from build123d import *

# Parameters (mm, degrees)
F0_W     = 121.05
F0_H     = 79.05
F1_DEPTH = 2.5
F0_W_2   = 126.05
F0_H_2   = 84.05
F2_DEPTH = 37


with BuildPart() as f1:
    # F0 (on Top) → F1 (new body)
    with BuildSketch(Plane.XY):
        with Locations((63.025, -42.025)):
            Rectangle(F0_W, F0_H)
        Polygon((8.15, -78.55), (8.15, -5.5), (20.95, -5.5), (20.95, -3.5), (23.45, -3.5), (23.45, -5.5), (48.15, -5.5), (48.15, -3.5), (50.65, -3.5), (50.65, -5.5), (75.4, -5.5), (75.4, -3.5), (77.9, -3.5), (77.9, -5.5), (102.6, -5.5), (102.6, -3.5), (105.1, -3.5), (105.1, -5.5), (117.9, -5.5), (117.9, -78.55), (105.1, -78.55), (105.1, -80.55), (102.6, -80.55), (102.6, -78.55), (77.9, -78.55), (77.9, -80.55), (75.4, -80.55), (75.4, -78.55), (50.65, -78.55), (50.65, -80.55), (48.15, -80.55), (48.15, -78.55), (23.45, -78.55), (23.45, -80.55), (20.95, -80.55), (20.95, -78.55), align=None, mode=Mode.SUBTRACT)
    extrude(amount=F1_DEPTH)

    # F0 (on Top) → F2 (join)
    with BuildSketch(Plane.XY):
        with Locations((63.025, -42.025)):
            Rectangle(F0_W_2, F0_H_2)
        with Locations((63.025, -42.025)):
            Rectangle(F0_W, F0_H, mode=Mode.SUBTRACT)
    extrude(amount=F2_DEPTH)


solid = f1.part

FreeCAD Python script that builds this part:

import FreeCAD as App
import Part
import Sketcher
Q = App.Units.Quantity

doc = App.newDocument("Part")
body = doc.addObject("PartDesign::Body", "Body")

# Sketch on XY plane
sketch1 = body.newObject("Sketcher::SketchObject", "Sketch")
sketch1.AttachmentSupport = (doc.getObject("XY_Plane"), [""])
sketch1.MapMode = "FlatFace"
sketch1.addGeometry([
    Part.LineSegment(App.Vector(2.5, -2.5, 0), App.Vector(2.5, -81.5, 0)),  # 0
    Part.LineSegment(App.Vector(2.5, -81.5, 0), App.Vector(123.5, -81.5, 0)),  # 1
    Part.LineSegment(App.Vector(123.5, -81.5, 0), App.Vector(123.5, -2.5, 0)),  # 2
    Part.LineSegment(App.Vector(123.5, -2.5, 0), App.Vector(2.5, -2.5, 0)),  # 3
    Part.LineSegment(App.Vector(20.9, -78.5, 0), App.Vector(8.2, -78.5, 0)),  # 4
    Part.LineSegment(App.Vector(8.2, -78.5, 0), App.Vector(8.2, -5.5, 0)),  # 5
    Part.LineSegment(App.Vector(8.2, -5.5, 0), App.Vector(20.9, -5.5, 0)),  # 6
    Part.LineSegment(App.Vector(20.9, -5.5, 0), App.Vector(20.9, -3.5, 0)),  # 7
    Part.LineSegment(App.Vector(20.9, -3.5, 0), App.Vector(23.4, -3.5, 0)),  # 8
    Part.LineSegment(App.Vector(23.4, -3.5, 0), App.Vector(23.4, -5.5, 0)),  # 9
    Part.LineSegment(App.Vector(23.4, -5.5, 0), App.Vector(48.1, -5.5, 0)),  # 10
    Part.LineSegment(App.Vector(48.1, -5.5, 0), App.Vector(48.1, -3.5, 0)),  # 11
    Part.LineSegment(App.Vector(48.1, -3.5, 0), App.Vector(50.6, -3.5, 0)),  # 12
    Part.LineSegment(App.Vector(50.6, -3.5, 0), App.Vector(50.6, -5.5, 0)),  # 13
    Part.LineSegment(App.Vector(50.6, -5.5, 0), App.Vector(75.4, -5.5, 0)),  # 14
    Part.LineSegment(App.Vector(75.4, -5.5, 0), App.Vector(75.4, -3.5, 0)),  # 15
    Part.LineSegment(App.Vector(75.4, -3.5, 0), App.Vector(77.9, -3.5, 0)),  # 16
    Part.LineSegment(App.Vector(77.9, -3.5, 0), App.Vector(77.9, -5.5, 0)),  # 17
    Part.LineSegment(App.Vector(77.9, -5.5, 0), App.Vector(102.6, -5.5, 0)),  # 18
    Part.LineSegment(App.Vector(102.6, -5.5, 0), App.Vector(102.6, -3.5, 0)),  # 19
    Part.LineSegment(App.Vector(102.6, -3.5, 0), App.Vector(105.1, -3.5, 0)),  # 20
    Part.LineSegment(App.Vector(105.1, -3.5, 0), App.Vector(105.1, -5.5, 0)),  # 21
    Part.LineSegment(App.Vector(105.1, -5.5, 0), App.Vector(117.9, -5.5, 0)),  # 22
    Part.LineSegment(App.Vector(117.9, -5.5, 0), App.Vector(117.9, -78.5, 0)),  # 23
    Part.LineSegment(App.Vector(117.9, -78.5, 0), App.Vector(105.1, -78.5, 0)),  # 24
    Part.LineSegment(App.Vector(105.1, -78.5, 0), App.Vector(105.1, -80.5, 0)),  # 25
    Part.LineSegment(App.Vector(105.1, -80.5, 0), App.Vector(102.6, -80.5, 0)),  # 26
    Part.LineSegment(App.Vector(102.6, -80.5, 0), App.Vector(102.6, -78.5, 0)),  # 27
    Part.LineSegment(App.Vector(102.6, -78.5, 0), App.Vector(77.9, -78.5, 0)),  # 28
    Part.LineSegment(App.Vector(77.9, -78.5, 0), App.Vector(77.9, -80.5, 0)),  # 29
    Part.LineSegment(App.Vector(77.9, -80.5, 0), App.Vector(75.4, -80.5, 0)),  # 30
    Part.LineSegment(App.Vector(75.4, -80.5, 0), App.Vector(75.4, -78.5, 0)),  # 31
    Part.LineSegment(App.Vector(75.4, -78.5, 0), App.Vector(50.6, -78.5, 0)),  # 32
    Part.LineSegment(App.Vector(50.6, -78.5, 0), App.Vector(50.6, -80.5, 0)),  # 33
    Part.LineSegment(App.Vector(50.6, -80.5, 0), App.Vector(48.1, -80.5, 0)),  # 34
    Part.LineSegment(App.Vector(48.1, -80.5, 0), App.Vector(48.1, -78.5, 0)),  # 35
    Part.LineSegment(App.Vector(48.1, -78.5, 0), App.Vector(23.4, -78.5, 0)),  # 36
    Part.LineSegment(App.Vector(23.4, -78.5, 0), App.Vector(23.4, -80.5, 0)),  # 37
    Part.LineSegment(App.Vector(23.4, -80.5, 0), App.Vector(20.9, -80.5, 0)),  # 38
    Part.LineSegment(App.Vector(20.9, -80.5, 0), App.Vector(20.9, -78.5, 0)),  # 39
], False)
sketch1.addConstraint([
    Sketcher.Constraint("Coincident", 0, 2, 1, 1),
    Sketcher.Constraint("Coincident", 1, 2, 2, 1),
    Sketcher.Constraint("Coincident", 2, 2, 3, 1),
    Sketcher.Constraint("Coincident", 3, 2, 0, 1),
    Sketcher.Constraint("Coincident", 4, 2, 5, 1),
    Sketcher.Constraint("Coincident", 5, 2, 6, 1),
    Sketcher.Constraint("Coincident", 6, 2, 7, 1),
    Sketcher.Constraint("Coincident", 7, 2, 8, 1),
    Sketcher.Constraint("Coincident", 8, 2, 9, 1),
    Sketcher.Constraint("Coincident", 9, 2, 10, 1),
    Sketcher.Constraint("Coincident", 10, 2, 11, 1),
    Sketcher.Constraint("Coincident", 11, 2, 12, 1),
    Sketcher.Constraint("Coincident", 12, 2, 13, 1),
    Sketcher.Constraint("Coincident", 13, 2, 14, 1),
    Sketcher.Constraint("Coincident", 14, 2, 15, 1),
    Sketcher.Constraint("Coincident", 15, 2, 16, 1),
    Sketcher.Constraint("Coincident", 16, 2, 17, 1),
    Sketcher.Constraint("Coincident", 17, 2, 18, 1),
    Sketcher.Constraint("Coincident", 18, 2, 19, 1),
    Sketcher.Constraint("Coincident", 19, 2, 20, 1),
    Sketcher.Constraint("Coincident", 20, 2, 21, 1),
    Sketcher.Constraint("Coincident", 21, 2, 22, 1),
    Sketcher.Constraint("Coincident", 22, 2, 23, 1),
    Sketcher.Constraint("Coincident", 23, 2, 24, 1),
    Sketcher.Constraint("Coincident", 24, 2, 25, 1),
    Sketcher.Constraint("Coincident", 25, 2, 26, 1),
    Sketcher.Constraint("Coincident", 26, 2, 27, 1),
    Sketcher.Constraint("Coincident", 27, 2, 28, 1),
    Sketcher.Constraint("Coincident", 28, 2, 29, 1),
    Sketcher.Constraint("Coincident", 29, 2, 30, 1),
    Sketcher.Constraint("Coincident", 30, 2, 31, 1),
    Sketcher.Constraint("Coincident", 31, 2, 32, 1),
    Sketcher.Constraint("Coincident", 32, 2, 33, 1),
    Sketcher.Constraint("Coincident", 33, 2, 34, 1),
    Sketcher.Constraint("Coincident", 34, 2, 35, 1),
    Sketcher.Constraint("Coincident", 35, 2, 36, 1),
    Sketcher.Constraint("Coincident", 36, 2, 37, 1),
    Sketcher.Constraint("Coincident", 37, 2, 38, 1),
    Sketcher.Constraint("Coincident", 38, 2, 39, 1),
    Sketcher.Constraint("Coincident", 39, 2, 4, 1),
    Sketcher.Constraint("Vertical", 0),
    Sketcher.Constraint("Horizontal", 1),
    Sketcher.Constraint("Vertical", 2),
    Sketcher.Constraint("Horizontal", 3),
    Sketcher.Constraint("Horizontal", 4),
    Sketcher.Constraint("Vertical", 5),
    Sketcher.Constraint("Horizontal", 6),
    Sketcher.Constraint("Vertical", 7),
    Sketcher.Constraint("Horizontal", 8),
    Sketcher.Constraint("Vertical", 9),
    Sketcher.Constraint("Horizontal", 10),
    Sketcher.Constraint("Vertical", 11),
    Sketcher.Constraint("Horizontal", 12),
    Sketcher.Constraint("Vertical", 13),
    Sketcher.Constraint("Horizontal", 14),
    Sketcher.Constraint("Vertical", 15),
    Sketcher.Constraint("Horizontal", 16),
    Sketcher.Constraint("Vertical", 17),
    Sketcher.Constraint("Horizontal", 18),
    Sketcher.Constraint("Vertical", 19),
    Sketcher.Constraint("Horizontal", 20),
    Sketcher.Constraint("Vertical", 21),
    Sketcher.Constraint("Horizontal", 22),
    Sketcher.Constraint("Vertical", 23),
    Sketcher.Constraint("Horizontal", 24),
    Sketcher.Constraint("Vertical", 25),
    Sketcher.Constraint("Horizontal", 26),
    Sketcher.Constraint("Vertical", 27),
    Sketcher.Constraint("Horizontal", 28),
    Sketcher.Constraint("Vertical", 29),
    Sketcher.Constraint("Horizontal", 30),
    Sketcher.Constraint("Vertical", 31),
    Sketcher.Constraint("Horizontal", 32),
    Sketcher.Constraint("Vertical", 33),
    Sketcher.Constraint("Horizontal", 34),
    Sketcher.Constraint("Vertical", 35),
    Sketcher.Constraint("Horizontal", 36),
    Sketcher.Constraint("Vertical", 37),
    Sketcher.Constraint("Horizontal", 38),
    Sketcher.Constraint("Vertical", 39),
    Sketcher.Constraint("Horizontal", 6, 2, 9, 2),
    Sketcher.Constraint("Horizontal", 8, 2, 11, 2),
    Sketcher.Constraint("Horizontal", 10, 2, 13, 2),
    Sketcher.Constraint("Horizontal", 12, 2, 15, 2),
    Sketcher.Constraint("Horizontal", 14, 2, 17, 2),
    Sketcher.Constraint("Horizontal", 16, 2, 19, 2),
    Sketcher.Constraint("Horizontal", 18, 2, 21, 2),
    Sketcher.Constraint("Horizontal", 4, 2, 23, 2),
    Sketcher.Constraint("Horizontal", 24, 2, 27, 2),
    Sketcher.Constraint("Horizontal", 26, 2, 29, 2),
    Sketcher.Constraint("Horizontal", 28, 2, 31, 2),
    Sketcher.Constraint("Horizontal", 30, 2, 33, 2),
    Sketcher.Constraint("Horizontal", 32, 2, 35, 2),
    Sketcher.Constraint("Horizontal", 34, 2, 37, 2),
    Sketcher.Constraint("Vertical", 21, 2, 24, 2),
    Sketcher.Constraint("Vertical", 19, 2, 26, 2),
    Sketcher.Constraint("Vertical", 17, 2, 28, 2),
    Sketcher.Constraint("Vertical", 15, 2, 30, 2),
    Sketcher.Constraint("Vertical", 13, 2, 32, 2),
    Sketcher.Constraint("Vertical", 11, 2, 34, 2),
    Sketcher.Constraint("Vertical", 9, 2, 36, 2),
    Sketcher.Constraint("Vertical", 7, 2, 38, 2),
    Sketcher.Constraint("Equal", 8, 12),
    Sketcher.Constraint("Equal", 12, 16),
    Sketcher.Constraint("Equal", 10, 18),
    Sketcher.Constraint("Equal", 16, 20),
    Sketcher.Constraint("Equal", 6, 22),
    Sketcher.Constraint("Equal", 21, 25),
    Sketcher.Constraint("DistanceY", 7, 1, 7, 2, Q("2 mm")),
    Sketcher.Constraint("DistanceX", 4, 2, 4, 1, Q("12.8 mm")),
    Sketcher.Constraint("DistanceX", 8, 1, 8, 2, Q("2.5 mm")),
    Sketcher.Constraint("DistanceX", 10, 1, 10, 2, Q("24.7 mm")),
    Sketcher.Constraint("DistanceY", 0, 2, 4, 2, Q("3 mm")),
    Sketcher.Constraint("DistanceY", 5, 2, 3, 2, Q("3 mm")),
    Sketcher.Constraint("DistanceX", 1, 1, 1, 2, Q("121.05 mm")),
    Sketcher.Constraint("DistanceX", 14, 1, 14, 2, Q("24.75 mm")),
    Sketcher.Constraint("DistanceY", 0, 2, 0, 1, Q("79.05 mm")),
    Sketcher.Constraint("DistanceX", -1, 1, 0, 2, Q("2.5 mm")),
    Sketcher.Constraint("DistanceY", 2, 2, -1, 1, Q("2.5 mm")),
    Sketcher.Constraint("DistanceX", -1, 1, 14, 2, Q("75.4 mm")),
])
pad1 = body.newObject("PartDesign::Pad", "Pad")
pad1.Profile = sketch1
pad1.Length = 2.5

# Sketch on XY plane
sketch2 = body.newObject("Sketcher::SketchObject", "Sketch001")
sketch2.AttachmentSupport = (doc.getObject("XY_Plane"), [""])
sketch2.MapMode = "FlatFace"
sketch2.addGeometry([
    Part.LineSegment(App.Vector(0, 0, 0), App.Vector(0, -84, 0)),  # 0
    Part.LineSegment(App.Vector(0, -84, 0), App.Vector(126, -84, 0)),  # 1
    Part.LineSegment(App.Vector(126, -84, 0), App.Vector(126, 0, 0)),  # 2
    Part.LineSegment(App.Vector(126, 0, 0), App.Vector(0, 0, 0)),  # 3
    Part.LineSegment(App.Vector(124, -82, 0), App.Vector(2, -82, 0)),  # 4
    Part.LineSegment(App.Vector(2, -82, 0), App.Vector(2, -2, 0)),  # 5
    Part.LineSegment(App.Vector(2, -2, 0), App.Vector(124, -2, 0)),  # 6
    Part.LineSegment(App.Vector(124, -2, 0), App.Vector(124, -82, 0)),  # 7
], False)
sketch2.addConstraint([
    Sketcher.Constraint("Coincident", 0, 2, 1, 1),
    Sketcher.Constraint("Coincident", 1, 2, 2, 1),
    Sketcher.Constraint("Coincident", 2, 2, 3, 1),
    Sketcher.Constraint("Coincident", 3, 2, 0, 1),
    Sketcher.Constraint("Coincident", 4, 2, 5, 1),
    Sketcher.Constraint("Coincident", 5, 2, 6, 1),
    Sketcher.Constraint("Coincident", 6, 2, 7, 1),
    Sketcher.Constraint("Coincident", 7, 2, 4, 1),
    Sketcher.Constraint("Vertical", 0),
    Sketcher.Constraint("Horizontal", 1),
    Sketcher.Constraint("Vertical", 2),
    Sketcher.Constraint("Horizontal", 3),
    Sketcher.Constraint("Horizontal", 4),
    Sketcher.Constraint("Vertical", 5),
    Sketcher.Constraint("Horizontal", 6),
    Sketcher.Constraint("Vertical", 7),
    Sketcher.Constraint("Coincident", 3, 2, -1, 1),
    Sketcher.Constraint("DistanceX", 1, 1, 1, 2, Q("126.05 mm")),
    Sketcher.Constraint("DistanceX", 4, 2, 4, 1, Q("121.05 mm")),
    Sketcher.Constraint("DistanceY", 0, 2, 0, 1, Q("84.05 mm")),
    Sketcher.Constraint("DistanceY", 5, 1, 5, 2, Q("79.05 mm")),
    Sketcher.Constraint("DistanceX", -1, 1, 4, 2, Q("2.5 mm")),
    Sketcher.Constraint("DistanceY", 5, 2, -1, 1, Q("2.5 mm")),
])
pad2 = body.newObject("PartDesign::Pad", "Pad001")
pad2.Profile = sketch2
pad2.Length = 37

doc.recompute()
